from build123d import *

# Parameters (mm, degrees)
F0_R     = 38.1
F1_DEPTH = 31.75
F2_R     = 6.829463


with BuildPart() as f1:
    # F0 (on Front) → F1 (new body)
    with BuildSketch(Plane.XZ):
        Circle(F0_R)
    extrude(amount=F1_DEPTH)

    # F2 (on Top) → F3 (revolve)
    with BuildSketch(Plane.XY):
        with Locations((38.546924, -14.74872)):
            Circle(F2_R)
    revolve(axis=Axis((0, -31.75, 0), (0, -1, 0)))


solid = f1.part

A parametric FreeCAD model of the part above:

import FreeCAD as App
import Part
import Sketcher

V = App.Vector
Q = App.Units.Quantity

doc = App.newDocument("Part")
body = doc.addObject("PartDesign::Body", "Body")

# Sketch on XZ plane
sketch1 = body.newObject("Sketcher::SketchObject", "Sketch")
sketch1.AttachmentSupport = (doc.getObject("XZ_Plane"), [""])
sketch1.MapMode = "FlatFace"
sketch1.addGeometry(Part.Circle(V(0, 0, 0), V(0, 0, 1), 38), False)
sketch1.addConstraint([
    Sketcher.Constraint("Coincident", 0, 3, -1, 1),
    Sketcher.Constraint("Diameter", 0, Q("3 in")),
])
pad1 = body.newObject("PartDesign::Pad", "Pad")
pad1.Profile = sketch1
pad1.Length = Q("1.25 in")

# Sketch on XY plane
sketch2 = body.newObject("Sketcher::SketchObject", "Sketch001")
sketch2.AttachmentSupport = (doc.getObject("XY_Plane"), [""])
sketch2.MapMode = "FlatFace"
sketch2.addGeometry(Part.Circle(V(39, -15, 0), V(0, 0, 1), 7), False)
sketch2.addConstraint([
    Sketcher.Constraint("Diameter", 0, 13.658926),
    Sketcher.Constraint("DistanceY", 0, 3, -1, 1, 14.74872),
    Sketcher.Constraint("DistanceX", -1, 1, 0, 3, 38.546924),
])
revolution = body.newObject("PartDesign::Revolution", "Revolution")
revolution.Profile = sketch2
revolution.ReferenceAxis = (sketch2, ["V_Axis"])
revolution.Angle = 360

doc.recompute()
